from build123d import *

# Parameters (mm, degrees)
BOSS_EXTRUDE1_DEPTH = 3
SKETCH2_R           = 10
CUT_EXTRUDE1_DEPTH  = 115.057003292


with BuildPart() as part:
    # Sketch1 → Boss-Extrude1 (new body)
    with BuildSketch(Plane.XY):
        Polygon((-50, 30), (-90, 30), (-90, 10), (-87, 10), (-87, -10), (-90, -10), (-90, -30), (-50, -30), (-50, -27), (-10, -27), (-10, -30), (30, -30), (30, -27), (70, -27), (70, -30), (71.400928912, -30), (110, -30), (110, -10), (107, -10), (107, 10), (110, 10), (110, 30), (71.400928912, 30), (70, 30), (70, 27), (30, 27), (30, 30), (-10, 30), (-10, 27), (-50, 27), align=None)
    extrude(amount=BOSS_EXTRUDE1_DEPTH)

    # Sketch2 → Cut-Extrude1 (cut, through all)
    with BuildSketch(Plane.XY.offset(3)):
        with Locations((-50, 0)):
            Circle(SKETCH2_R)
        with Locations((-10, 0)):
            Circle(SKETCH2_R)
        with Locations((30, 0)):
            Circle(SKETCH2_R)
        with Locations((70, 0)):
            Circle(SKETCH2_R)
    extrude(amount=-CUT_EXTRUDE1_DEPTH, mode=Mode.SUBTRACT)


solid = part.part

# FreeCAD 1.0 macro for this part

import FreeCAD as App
import Part
import Sketcher
from FreeCAD import Vector
Q = App.Units.Quantity

doc = App.newDocument("Part")
params = doc.addObject("Spreadsheet::Sheet", "Params")
for row, (alias, value) in enumerate([
    ("sketch1_width", "40 mm"),
    ("sketch1_width2", "3 mm"),
    ("sketch1_height", "20 mm"),
    ("pad1_length", "3 mm"),
    ("sketch2_diameter", "20 mm"),
], start=1):
    params.set(f"A{row}", alias)
    params.set(f"B{row}", "=" + value)
    params.setAlias(f"B{row}", alias)

body = doc.addObject("PartDesign::Body", "Body")

sketch1 = body.newObject("Sketcher::SketchObject", "Sketch")
sketch1.AttachmentSupport = (doc.getObject("XY_Plane"), [""])
sketch1.MapMode = "FlatFace"
sketch1.addGeometry(Part.LineSegment(Vector(-50, 30, 0), Vector(-90, 30, 0)), False)
sketch1.addGeometry(Part.LineSegment(Vector(-90, 30, 0), Vector(-90, 10, 0)), False)
sketch1.addGeometry(Part.LineSegment(Vector(-90, 10, 0), Vector(-87, 10, 0)), False)
sketch1.addGeometry(Part.LineSegment(Vector(-87, 10, 0), Vector(-87, -10, 0)), False)
sketch1.addGeometry(Part.LineSegment(Vector(-87, -10, 0), Vector(-90, -10, 0)), False)
sketch1.addGeometry(Part.LineSegment(Vector(-90, -10, 0), Vector(-90, -30, 0)), False)
sketch1.addGeometry(Part.LineSegment(Vector(-90, -30, 0), Vector(-50, -30, 0)), False)
sketch1.addGeometry(Part.LineSegment(Vector(-50, -30, 0), Vector(-50, -27, 0)), False)
sketch1.addGeometry(Part.LineSegment(Vector(-50, -27, 0), Vector(-10, -27, 0)), False)
sketch1.addGeometry(Part.LineSegment(Vector(-10, -27, 0), Vector(-10, -30, 0)), False)
sketch1.addGeometry(Part.LineSegment(Vector(-10, -30, 0), Vector(30, -30, 0)), False)
sketch1.addGeometry(Part.LineSegment(Vector(30, -30, 0), Vector(30, -27, 0)), False)
sketch1.addGeometry(Part.LineSegment(Vector(30, -27, 0), Vector(70, -27, 0)), False)
sketch1.addGeometry(Part.LineSegment(Vector(70, -27, 0), Vector(70, -30, 0)), False)
sketch1.addGeometry(Part.LineSegment(Vector(70, -30, 0), Vector(110, -30, 0)), False)
sketch1.addGeometry(Part.LineSegment(Vector(110, -30, 0), Vector(110, -10, 0)), False)
sketch1.addGeometry(Part.LineSegment(Vector(110, -10, 0), Vector(107, -10, 0)), False)
sketch1.addGeometry(Part.LineSegment(Vector(107, -10, 0), Vector(107, 10, 0)), False)
sketch1.addGeometry(Part.LineSegment(Vector(107, 10, 0), Vector(110, 10, 0)), False)
sketch1.addGeometry(Part.LineSegment(Vector(110, 10, 0), Vector(110, 30, 0)), False)
sketch1.addGeometry(Part.LineSegment(Vector(110, 30, 0), Vector(70, 30, 0)), False)
sketch1.addGeometry(Part.LineSegment(Vector(70, 30, 0), Vector(70, 27, 0)), False)
sketch1.addGeometry(Part.LineSegment(Vector(70, 27, 0), Vector(30, 27, 0)), False)
sketch1.addGeometry(Part.LineSegment(Vector(30, 27, 0), Vector(30, 30, 0)), False)
sketch1.addGeometry(Part.LineSegment(Vector(30, 30, 0), Vector(-10, 30, 0)), False)
sketch1.addGeometry(Part.LineSegment(Vector(-10, 30, 0), Vector(-10, 27, 0)), False)
sketch1.addGeometry(Part.LineSegment(Vector(-10, 27, 0), Vector(-50, 27, 0)), False)
sketch1.addGeometry(Part.LineSegment(Vector(-50, 27, 0), Vector(-50, 30, 0)), False)
sketch1.addConstraint(Sketcher.Constraint("Coincident", 0, 2, 1, 1))
sketch1.addConstraint(Sketcher.Constraint("Coincident", 1, 2, 2, 1))
sketch1.addConstraint(Sketcher.Constraint("Coincident", 2, 2, 3, 1))
sketch1.addConstraint(Sketcher.Constraint("Coincident", 3, 2, 4, 1))
sketch1.addConstraint(Sketcher.Constraint("Coincident", 4, 2, 5, 1))
sketch1.addConstraint(Sketcher.Constraint("Coincident", 5, 2, 6, 1))
sketch1.addConstraint(Sketcher.Constraint("Coincident", 6, 2, 7, 1))
sketch1.addConstraint(Sketcher.Constraint("Coincident", 7, 2, 8, 1))
sketch1.addConstraint(Sketcher.Constraint("Coincident", 8, 2, 9, 1))
sketch1.addConstraint(Sketcher.Constraint("Coincident", 9, 2, 10, 1))
sketch1.addConstraint(Sketcher.Constraint("Coincident", 10, 2, 11, 1))
sketch1.addConstraint(Sketcher.Constraint("Coincident", 11, 2, 12, 1))
sketch1.addConstraint(Sketcher.Constraint("Coincident", 12, 2, 13, 1))
sketch1.addConstraint(Sketcher.Constraint("Coincident", 13, 2, 14, 1))
sketch1.addConstraint(Sketcher.Constraint("Coincident", 14, 2, 15, 1))
sketch1.addConstraint(Sketcher.Constraint("Coincident", 15, 2, 16, 1))
sketch1.addConstraint(Sketcher.Constraint("Coincident", 16, 2, 17, 1))
sketch1.addConstraint(Sketcher.Constraint("Coincident", 17, 2, 18, 1))
sketch1.addConstraint(Sketcher.Constraint("Coincident", 18, 2, 19, 1))
sketch1.addConstraint(Sketcher.Constraint("Coincident", 19, 2, 20, 1))
sketch1.addConstraint(Sketcher.Constraint("Coincident", 20, 2, 21, 1))
sketch1.addConstraint(Sketcher.Constraint("Coincident", 21, 2, 22, 1))
sketch1.addConstraint(Sketcher.Constraint("Coincident", 22, 2, 23, 1))
sketch1.addConstraint(Sketcher.Constraint("Coincident", 23, 2, 24, 1))
sketch1.addConstraint(Sketcher.Constraint("Coincident", 24, 2, 25, 1))
sketch1.addConstraint(Sketcher.Constraint("Coincident", 25, 2, 26, 1))
sketch1.addConstraint(Sketcher.Constraint("Coincident", 26, 2, 27, 1))
sketch1.addConstraint(Sketcher.Constraint("Coincident", 27, 2, 0, 1))
sketch1.addConstraint(Sketcher.Constraint("Horizontal", 0))
sketch1.addConstraint(Sketcher.Constraint("Vertical", 1))
sketch1.addConstraint(Sketcher.Constraint("Horizontal", 2))
sketch1.addConstraint(Sketcher.Constraint("Vertical", 3))
sketch1.addConstraint(Sketcher.Constraint("Horizontal", 4))
sketch1.addConstraint(Sketcher.Constraint("Vertical", 5))
sketch1.addConstraint(Sketcher.Constraint("Horizontal", 6))
sketch1.addConstraint(Sketcher.Constraint("Vertical", 7))
sketch1.addConstraint(Sketcher.Constraint("Horizontal", 8))
sketch1.addConstraint(Sketcher.Constraint("Vertical", 9))
sketch1.addConstraint(Sketcher.Constraint("Horizontal", 10))
sketch1.addConstraint(Sketcher.Constraint("Vertical", 11))
sketch1.addConstraint(Sketcher.Constraint("Horizontal", 12))
sketch1.addConstraint(Sketcher.Constraint("Vertical", 13))
sketch1.addConstraint(Sketcher.Constraint("Horizontal", 14))
sketch1.addConstraint(Sketcher.Constraint("Vertical", 15))
sketch1.addConstraint(Sketcher.Constraint("Horizontal", 16))
sketch1.addConstraint(Sketcher.Constraint("Vertical", 17))
sketch1.addConstraint(Sketcher.Constraint("Horizontal", 18))
sketch1.addConstraint(Sketcher.Constraint("Vertical", 19))
sketch1.addConstraint(Sketcher.Constraint("Horizontal", 20))
sketch1.addConstraint(Sketcher.Constraint("Vertical", 21))
sketch1.addConstraint(Sketcher.Constraint("Horizontal", 22))
sketch1.addConstraint(Sketcher.Constraint("Vertical", 23))
sketch1.addConstraint(Sketcher.Constraint("Horizontal", 24))
sketch1.addConstraint(Sketcher.Constraint("Vertical", 25))
sketch1.addConstraint(Sketcher.Constraint("Horizontal", 26))
sketch1.addConstraint(Sketcher.Constraint("Vertical", 27))
sketch1.addConstraint(Sketcher.Constraint("Symmetric", 1, 2, 4, 2, -1))
sketch1.addConstraint(Sketcher.Constraint("Symmetric", 15, 2, 18, 2, -1))
sketch1.addConstraint(Sketcher.Constraint("Symmetric", 13, 2, 20, 2, -1))
sketch1.addConstraint(Sketcher.Constraint("Symmetric", 11, 2, 22, 2, -1))
sketch1.addConstraint(Sketcher.Constraint("Symmetric", 9, 2, 24, 2, -1))
sketch1.addConstraint(Sketcher.Constraint("Symmetric", 7, 2, 26, 2, -1))
sketch1.addConstraint(Sketcher.Constraint("Horizontal", 6, 2, 9, 2))
sketch1.addConstraint(Sketcher.Constraint("Horizontal", 8, 2, 11, 2))
sketch1.addConstraint(Sketcher.Constraint("Horizontal", 10, 2, 13, 2))
sketch1.addConstraint(Sketcher.Constraint("Horizontal", 4, 2, 15, 2))
sketch1.addConstraint(Sketcher.Constraint("Horizontal", 0, 2, 19, 2))
sketch1.addConstraint(Sketcher.Constraint("Equal", 6, 8))
sketch1.addConstraint(Sketcher.Constraint("Equal", 8, 10))
sketch1.addConstraint(Sketcher.Constraint("Equal", 10, 12))
sketch1.addConstraint(Sketcher.Constraint("Equal", 12, 14))
sketch1.addConstraint(Sketcher.Constraint("Equal", 4, 16))
sketch1.addConstraint(Sketcher.Constraint("Equal", 1, 3))
sketch1.addConstraint(Sketcher.Constraint("Equal", 18, 7))
sketch1.addConstraint(Sketcher.Constraint("DistanceX", 0, 2, 0, 1, Q("40 mm")))
sketch1.addConstraint(Sketcher.Constraint("DistanceX", 2, 1, 2, 2, Q("3 mm")))
sketch1.addConstraint(Sketcher.Constraint("DistanceY", 1, 2, 1, 1, Q("20 mm")))
sketch1.addConstraint(Sketcher.Constraint("DistanceX", 0, 2, -1, 1, Q("90 mm")))
sketch1.setExpression("Constraints[74]", "Params.sketch1_width")
sketch1.setExpression("Constraints[75]", "Params.sketch1_width2")
sketch1.setExpression("Constraints[76]", "Params.sketch1_height")
pad1 = body.newObject("PartDesign::Pad", "Pad")
pad1.Profile = sketch1
pad1.setExpression("Length", "Params.pad1_length")

sketch2 = body.newObject("Sketcher::SketchObject", "Sketch001")
sketch2.AttachmentSupport = (doc.getObject("XY_Plane"), [""])
sketch2.MapMode = "FlatFace"
sketch2.AttachmentOffset = App.Placement(Vector(0, 0, 3), App.Rotation())
sketch2.addGeometry(Part.Circle(Vector(-50, 0, 0), Vector(0, 0, 1), 10), False)
sketch2.addGeometry(Part.Circle(Vector(-10, 0, 0), Vector(0, 0, 1), 10), False)
sketch2.addGeometry(Part.Circle(Vector(30, 0, 0), Vector(0, 0, 1), 10), False)
sketch2.addGeometry(Part.Circle(Vector(70, 0, 0), Vector(0, 0, 1), 10), False)
sketch2.addConstraint(Sketcher.Constraint("Equal", 0, 1))
sketch2.addConstraint(Sketcher.Constraint("Equal", 1, 2))
sketch2.addConstraint(Sketcher.Constraint("Equal", 2, 3))
sketch2.addConstraint(Sketcher.Constraint("PointOnObject", 0, 3, -1))
sketch2.addConstraint(Sketcher.Constraint("PointOnObject", 1, 3, -1))
sketch2.addConstraint(Sketcher.Constraint("PointOnObject", 2, 3, -1))
sketch2.addConstraint(Sketcher.Constraint("PointOnObject", 3, 3, -1))
sketch2.addConstraint(Sketcher.Constraint("Diameter", 0, Q("20 mm")))
sketch2.addConstraint(Sketcher.Constraint("DistanceX", 0, 3, -1, 1, Q("50 mm")))
sketch2.addConstraint(Sketcher.Constraint("DistanceX", 1, 3, -1, 1, Q("10 mm")))
sketch2.addConstraint(Sketcher.Constraint("DistanceX", -1, 1, 2, 3, Q("30 mm")))
sketch2.addConstraint(Sketcher.Constraint("DistanceX", -1, 1, 3, 3, Q("70 mm")))
sketch2.setExpression("Constraints[7]", "Params.sketch2_diameter")
pocket1 = body.newObject("PartDesign::Pocket", "Pocket")
pocket1.Profile = sketch2
pocket1.Type = "ThroughAll"

doc.recompute()
